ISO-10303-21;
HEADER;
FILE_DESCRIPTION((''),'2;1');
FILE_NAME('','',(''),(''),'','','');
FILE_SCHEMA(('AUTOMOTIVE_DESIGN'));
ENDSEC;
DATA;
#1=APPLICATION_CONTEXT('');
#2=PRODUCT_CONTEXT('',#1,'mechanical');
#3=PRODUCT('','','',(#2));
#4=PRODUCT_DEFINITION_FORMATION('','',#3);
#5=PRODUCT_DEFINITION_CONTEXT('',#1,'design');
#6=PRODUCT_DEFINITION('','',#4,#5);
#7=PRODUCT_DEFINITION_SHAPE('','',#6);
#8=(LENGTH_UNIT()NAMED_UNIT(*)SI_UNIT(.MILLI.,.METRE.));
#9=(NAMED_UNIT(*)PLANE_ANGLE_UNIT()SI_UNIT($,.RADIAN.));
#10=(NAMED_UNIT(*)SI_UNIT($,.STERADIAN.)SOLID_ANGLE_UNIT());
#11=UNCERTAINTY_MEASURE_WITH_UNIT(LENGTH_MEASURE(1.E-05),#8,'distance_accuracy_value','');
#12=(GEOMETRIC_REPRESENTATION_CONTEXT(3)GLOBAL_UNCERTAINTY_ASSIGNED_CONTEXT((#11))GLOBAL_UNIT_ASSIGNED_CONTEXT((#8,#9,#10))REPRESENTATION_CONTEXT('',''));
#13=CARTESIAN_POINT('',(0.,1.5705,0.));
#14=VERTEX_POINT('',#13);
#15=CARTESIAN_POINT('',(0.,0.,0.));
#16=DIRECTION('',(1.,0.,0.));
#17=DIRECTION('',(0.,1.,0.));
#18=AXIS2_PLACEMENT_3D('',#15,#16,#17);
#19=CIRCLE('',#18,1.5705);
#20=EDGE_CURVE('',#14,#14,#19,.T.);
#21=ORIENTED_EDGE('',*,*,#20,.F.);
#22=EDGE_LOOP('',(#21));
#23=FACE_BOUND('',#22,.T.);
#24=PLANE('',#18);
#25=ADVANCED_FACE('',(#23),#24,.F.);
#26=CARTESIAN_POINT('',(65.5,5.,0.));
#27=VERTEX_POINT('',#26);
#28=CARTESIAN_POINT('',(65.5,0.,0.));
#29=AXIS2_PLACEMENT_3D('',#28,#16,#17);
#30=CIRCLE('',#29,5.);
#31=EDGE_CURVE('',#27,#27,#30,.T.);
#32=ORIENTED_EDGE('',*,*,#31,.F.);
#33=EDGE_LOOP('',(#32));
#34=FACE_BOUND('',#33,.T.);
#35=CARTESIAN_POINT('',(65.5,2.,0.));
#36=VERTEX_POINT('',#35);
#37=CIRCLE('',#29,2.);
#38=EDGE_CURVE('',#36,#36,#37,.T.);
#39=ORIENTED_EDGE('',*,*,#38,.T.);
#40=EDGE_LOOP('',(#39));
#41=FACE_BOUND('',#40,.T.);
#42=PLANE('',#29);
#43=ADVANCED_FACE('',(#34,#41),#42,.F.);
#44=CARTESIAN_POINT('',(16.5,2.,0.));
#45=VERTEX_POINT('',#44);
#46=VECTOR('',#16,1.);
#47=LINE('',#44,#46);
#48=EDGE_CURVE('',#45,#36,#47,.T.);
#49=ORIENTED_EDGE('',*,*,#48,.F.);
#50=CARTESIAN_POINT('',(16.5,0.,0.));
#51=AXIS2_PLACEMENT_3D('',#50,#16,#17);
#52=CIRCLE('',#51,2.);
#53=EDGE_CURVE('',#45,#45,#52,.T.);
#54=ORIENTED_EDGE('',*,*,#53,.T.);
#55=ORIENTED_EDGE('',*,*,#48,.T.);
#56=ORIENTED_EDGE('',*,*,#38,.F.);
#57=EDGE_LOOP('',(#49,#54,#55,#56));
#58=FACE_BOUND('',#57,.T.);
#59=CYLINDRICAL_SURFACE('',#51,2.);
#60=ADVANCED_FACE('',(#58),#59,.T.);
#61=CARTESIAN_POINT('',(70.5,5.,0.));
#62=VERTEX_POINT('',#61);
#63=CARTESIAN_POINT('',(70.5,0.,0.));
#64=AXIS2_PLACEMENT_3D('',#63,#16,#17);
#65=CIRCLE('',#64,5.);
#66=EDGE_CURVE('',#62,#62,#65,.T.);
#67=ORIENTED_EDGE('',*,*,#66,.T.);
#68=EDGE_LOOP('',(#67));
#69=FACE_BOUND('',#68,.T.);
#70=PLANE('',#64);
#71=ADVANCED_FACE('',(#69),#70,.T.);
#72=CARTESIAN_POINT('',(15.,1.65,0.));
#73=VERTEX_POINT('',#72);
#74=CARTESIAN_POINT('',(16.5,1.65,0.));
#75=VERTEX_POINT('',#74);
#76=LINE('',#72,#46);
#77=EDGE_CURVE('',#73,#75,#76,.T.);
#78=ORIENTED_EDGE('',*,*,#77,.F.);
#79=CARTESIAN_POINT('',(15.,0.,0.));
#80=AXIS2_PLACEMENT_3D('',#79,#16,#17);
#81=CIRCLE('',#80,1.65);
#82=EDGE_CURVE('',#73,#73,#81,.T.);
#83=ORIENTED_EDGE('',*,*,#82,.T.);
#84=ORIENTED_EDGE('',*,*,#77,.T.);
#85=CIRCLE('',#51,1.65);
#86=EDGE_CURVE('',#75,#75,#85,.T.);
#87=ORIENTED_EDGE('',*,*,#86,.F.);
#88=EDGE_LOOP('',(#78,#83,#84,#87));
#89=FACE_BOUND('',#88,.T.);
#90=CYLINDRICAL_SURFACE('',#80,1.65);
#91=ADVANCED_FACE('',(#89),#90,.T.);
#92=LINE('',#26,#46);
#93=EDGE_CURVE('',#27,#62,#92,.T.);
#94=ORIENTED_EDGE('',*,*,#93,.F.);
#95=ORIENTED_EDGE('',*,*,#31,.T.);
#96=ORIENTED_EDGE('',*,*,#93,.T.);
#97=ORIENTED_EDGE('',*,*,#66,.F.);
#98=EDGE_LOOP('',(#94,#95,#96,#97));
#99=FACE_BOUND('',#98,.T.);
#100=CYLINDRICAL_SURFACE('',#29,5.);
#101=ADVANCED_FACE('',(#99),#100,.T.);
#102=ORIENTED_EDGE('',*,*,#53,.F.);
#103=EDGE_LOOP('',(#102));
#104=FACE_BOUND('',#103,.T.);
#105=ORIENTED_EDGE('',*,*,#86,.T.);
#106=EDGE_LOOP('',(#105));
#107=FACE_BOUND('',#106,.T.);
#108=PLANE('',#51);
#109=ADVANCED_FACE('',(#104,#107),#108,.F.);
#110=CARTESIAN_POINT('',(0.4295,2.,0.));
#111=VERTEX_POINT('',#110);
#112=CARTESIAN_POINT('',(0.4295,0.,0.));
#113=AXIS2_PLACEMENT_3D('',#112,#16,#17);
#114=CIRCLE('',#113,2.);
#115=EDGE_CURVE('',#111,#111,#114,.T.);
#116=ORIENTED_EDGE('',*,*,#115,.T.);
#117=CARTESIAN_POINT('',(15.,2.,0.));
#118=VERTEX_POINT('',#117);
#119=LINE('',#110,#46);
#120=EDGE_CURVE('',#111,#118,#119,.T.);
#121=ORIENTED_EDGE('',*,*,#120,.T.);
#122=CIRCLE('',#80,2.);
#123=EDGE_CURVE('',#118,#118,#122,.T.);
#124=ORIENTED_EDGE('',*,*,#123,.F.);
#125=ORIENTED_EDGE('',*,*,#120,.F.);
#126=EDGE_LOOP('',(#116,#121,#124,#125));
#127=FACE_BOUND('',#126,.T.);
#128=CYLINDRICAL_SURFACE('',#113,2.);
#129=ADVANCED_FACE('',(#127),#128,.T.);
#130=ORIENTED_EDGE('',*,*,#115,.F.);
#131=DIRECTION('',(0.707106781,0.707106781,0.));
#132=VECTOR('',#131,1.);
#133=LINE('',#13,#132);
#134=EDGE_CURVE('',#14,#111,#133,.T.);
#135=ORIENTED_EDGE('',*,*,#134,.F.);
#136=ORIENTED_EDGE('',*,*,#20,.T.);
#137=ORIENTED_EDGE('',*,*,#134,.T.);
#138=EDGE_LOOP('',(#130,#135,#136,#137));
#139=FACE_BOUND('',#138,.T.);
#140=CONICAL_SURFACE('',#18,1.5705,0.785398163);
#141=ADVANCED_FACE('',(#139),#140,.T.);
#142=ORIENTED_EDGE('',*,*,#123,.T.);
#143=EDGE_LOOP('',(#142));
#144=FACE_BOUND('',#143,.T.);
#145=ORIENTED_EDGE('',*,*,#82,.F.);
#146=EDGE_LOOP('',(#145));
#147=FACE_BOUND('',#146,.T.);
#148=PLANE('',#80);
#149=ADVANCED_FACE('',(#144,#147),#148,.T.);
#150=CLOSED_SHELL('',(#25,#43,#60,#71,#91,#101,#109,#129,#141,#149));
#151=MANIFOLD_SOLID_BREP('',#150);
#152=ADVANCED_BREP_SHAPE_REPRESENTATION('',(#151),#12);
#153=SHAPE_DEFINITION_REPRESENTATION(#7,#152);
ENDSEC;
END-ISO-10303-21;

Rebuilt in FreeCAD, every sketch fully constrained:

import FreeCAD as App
import Part
import Sketcher
from FreeCAD import Vector
Q = App.Units.Quantity

doc = App.newDocument("Part")
body = doc.addObject("PartDesign::Body", "Body")

# Sketch on XY plane
sketch1 = body.newObject("Sketcher::SketchObject", "Sketch")
sketch1.AttachmentSupport = (doc.getObject("XY_Plane"), [""])
sketch1.MapMode = "FlatFace"
sketch1.addGeometry(Part.LineSegment(Vector(0, 0, 0), Vector(70.5, 0, 0)), False)
sketch1.addGeometry(Part.LineSegment(Vector(70.5, 0, 0), Vector(70.5, 5, 0)), False)
sketch1.addGeometry(Part.LineSegment(Vector(70.5, 5, 0), Vector(65.5, 5, 0)), False)
sketch1.addGeometry(Part.LineSegment(Vector(65.5, 5, 0), Vector(65.5, 2, 0)), False)
sketch1.addGeometry(Part.LineSegment(Vector(65.5, 2, 0), Vector(16.5, 2, 0)), False)
sketch1.addGeometry(Part.LineSegment(Vector(16.5, 2, 0), Vector(16.5, 1.65, 0)), False)
sketch1.addGeometry(Part.LineSegment(Vector(16.5, 1.65, 0), Vector(15, 1.65, 0)), False)
sketch1.addGeometry(Part.LineSegment(Vector(15, 1.65, 0), Vector(15, 2, 0)), False)
sketch1.addGeometry(Part.LineSegment(Vector(15, 2, 0), Vector(0.43, 2, 0)), False)
sketch1.addGeometry(Part.LineSegment(Vector(0.43, 2, 0), Vector(0, 1.57, 0)), False)
sketch1.addGeometry(Part.LineSegment(Vector(0, 1.57, 0), Vector(0, 0, 0)), False)
sketch1.addConstraint(Sketcher.Constraint("Coincident", 0, 2, 1, 1))
sketch1.addConstraint(Sketcher.Constraint("Coincident", 1, 2, 2, 1))
sketch1.addConstraint(Sketcher.Constraint("Coincident", 2, 2, 3, 1))
sketch1.addConstraint(Sketcher.Constraint("Coincident", 3, 2, 4, 1))
sketch1.addConstraint(Sketcher.Constraint("Coincident", 4, 2, 5, 1))
sketch1.addConstraint(Sketcher.Constraint("Coincident", 5, 2, 6, 1))
sketch1.addConstraint(Sketcher.Constraint("Coincident", 6, 2, 7, 1))
sketch1.addConstraint(Sketcher.Constraint("Coincident", 7, 2, 8, 1))
sketch1.addConstraint(Sketcher.Constraint("Coincident", 8, 2, 9, 1))
sketch1.addConstraint(Sketcher.Constraint("Coincident", 9, 2, 10, 1))
sketch1.addConstraint(Sketcher.Constraint("Coincident", 10, 2, 0, 1))
sketch1.addConstraint(Sketcher.Constraint("Horizontal", 0))
sketch1.addConstraint(Sketcher.Constraint("Vertical", 1))
sketch1.addConstraint(Sketcher.Constraint("Horizontal", 2))
sketch1.addConstraint(Sketcher.Constraint("Vertical", 3))
sketch1.addConstraint(Sketcher.Constraint("Horizontal", 4))
sketch1.addConstraint(Sketcher.Constraint("Vertical", 5))
sketch1.addConstraint(Sketcher.Constraint("Horizontal", 6))
sketch1.addConstraint(Sketcher.Constraint("Vertical", 7))
sketch1.addConstraint(Sketcher.Constraint("Horizontal", 8))
sketch1.addConstraint(Sketcher.Constraint("Vertical", 10))
sketch1.addConstraint(Sketcher.Constraint("Coincident", 10, 2, -1, 1))
sketch1.addConstraint(Sketcher.Constraint("Horizontal", 4, 2, 7, 2))
sketch1.addConstraint(Sketcher.Constraint("Equal", 2, 1))
sketch1.addConstraint(Sketcher.Constraint("DistanceX", 2, 2, 2, 1, Q("5 mm")))
sketch1.addConstraint(Sketcher.Constraint("DistanceX", 4, 2, 4, 1, Q("49 mm")))
sketch1.addConstraint(Sketcher.Constraint("DistanceY", 3, 2, 3, 1, Q("3 mm")))
sketch1.addConstraint(Sketcher.Constraint("Angle", 9, Q("-135 deg")))
sketch1.addConstraint(Sketcher.Constraint("DistanceX", 0, 1, 0, 2, Q("70.5 mm")))
sketch1.addConstraint(Sketcher.Constraint("DistanceX", 6, 2, 6, 1, Q("1.5 mm")))
sketch1.addConstraint(Sketcher.Constraint("DistanceY", 5, 2, 5, 1, Q("0.35 mm")))
sketch1.addConstraint(Sketcher.Constraint("DistanceX", 8, 2, 8, 1, Q("14.5705 mm")))
revolution = body.newObject("PartDesign::Revolution", "Revolution")
revolution.Profile = sketch1
revolution.ReferenceAxis = (sketch1, ["H_Axis"])
revolution.Angle = 360

doc.recompute()
